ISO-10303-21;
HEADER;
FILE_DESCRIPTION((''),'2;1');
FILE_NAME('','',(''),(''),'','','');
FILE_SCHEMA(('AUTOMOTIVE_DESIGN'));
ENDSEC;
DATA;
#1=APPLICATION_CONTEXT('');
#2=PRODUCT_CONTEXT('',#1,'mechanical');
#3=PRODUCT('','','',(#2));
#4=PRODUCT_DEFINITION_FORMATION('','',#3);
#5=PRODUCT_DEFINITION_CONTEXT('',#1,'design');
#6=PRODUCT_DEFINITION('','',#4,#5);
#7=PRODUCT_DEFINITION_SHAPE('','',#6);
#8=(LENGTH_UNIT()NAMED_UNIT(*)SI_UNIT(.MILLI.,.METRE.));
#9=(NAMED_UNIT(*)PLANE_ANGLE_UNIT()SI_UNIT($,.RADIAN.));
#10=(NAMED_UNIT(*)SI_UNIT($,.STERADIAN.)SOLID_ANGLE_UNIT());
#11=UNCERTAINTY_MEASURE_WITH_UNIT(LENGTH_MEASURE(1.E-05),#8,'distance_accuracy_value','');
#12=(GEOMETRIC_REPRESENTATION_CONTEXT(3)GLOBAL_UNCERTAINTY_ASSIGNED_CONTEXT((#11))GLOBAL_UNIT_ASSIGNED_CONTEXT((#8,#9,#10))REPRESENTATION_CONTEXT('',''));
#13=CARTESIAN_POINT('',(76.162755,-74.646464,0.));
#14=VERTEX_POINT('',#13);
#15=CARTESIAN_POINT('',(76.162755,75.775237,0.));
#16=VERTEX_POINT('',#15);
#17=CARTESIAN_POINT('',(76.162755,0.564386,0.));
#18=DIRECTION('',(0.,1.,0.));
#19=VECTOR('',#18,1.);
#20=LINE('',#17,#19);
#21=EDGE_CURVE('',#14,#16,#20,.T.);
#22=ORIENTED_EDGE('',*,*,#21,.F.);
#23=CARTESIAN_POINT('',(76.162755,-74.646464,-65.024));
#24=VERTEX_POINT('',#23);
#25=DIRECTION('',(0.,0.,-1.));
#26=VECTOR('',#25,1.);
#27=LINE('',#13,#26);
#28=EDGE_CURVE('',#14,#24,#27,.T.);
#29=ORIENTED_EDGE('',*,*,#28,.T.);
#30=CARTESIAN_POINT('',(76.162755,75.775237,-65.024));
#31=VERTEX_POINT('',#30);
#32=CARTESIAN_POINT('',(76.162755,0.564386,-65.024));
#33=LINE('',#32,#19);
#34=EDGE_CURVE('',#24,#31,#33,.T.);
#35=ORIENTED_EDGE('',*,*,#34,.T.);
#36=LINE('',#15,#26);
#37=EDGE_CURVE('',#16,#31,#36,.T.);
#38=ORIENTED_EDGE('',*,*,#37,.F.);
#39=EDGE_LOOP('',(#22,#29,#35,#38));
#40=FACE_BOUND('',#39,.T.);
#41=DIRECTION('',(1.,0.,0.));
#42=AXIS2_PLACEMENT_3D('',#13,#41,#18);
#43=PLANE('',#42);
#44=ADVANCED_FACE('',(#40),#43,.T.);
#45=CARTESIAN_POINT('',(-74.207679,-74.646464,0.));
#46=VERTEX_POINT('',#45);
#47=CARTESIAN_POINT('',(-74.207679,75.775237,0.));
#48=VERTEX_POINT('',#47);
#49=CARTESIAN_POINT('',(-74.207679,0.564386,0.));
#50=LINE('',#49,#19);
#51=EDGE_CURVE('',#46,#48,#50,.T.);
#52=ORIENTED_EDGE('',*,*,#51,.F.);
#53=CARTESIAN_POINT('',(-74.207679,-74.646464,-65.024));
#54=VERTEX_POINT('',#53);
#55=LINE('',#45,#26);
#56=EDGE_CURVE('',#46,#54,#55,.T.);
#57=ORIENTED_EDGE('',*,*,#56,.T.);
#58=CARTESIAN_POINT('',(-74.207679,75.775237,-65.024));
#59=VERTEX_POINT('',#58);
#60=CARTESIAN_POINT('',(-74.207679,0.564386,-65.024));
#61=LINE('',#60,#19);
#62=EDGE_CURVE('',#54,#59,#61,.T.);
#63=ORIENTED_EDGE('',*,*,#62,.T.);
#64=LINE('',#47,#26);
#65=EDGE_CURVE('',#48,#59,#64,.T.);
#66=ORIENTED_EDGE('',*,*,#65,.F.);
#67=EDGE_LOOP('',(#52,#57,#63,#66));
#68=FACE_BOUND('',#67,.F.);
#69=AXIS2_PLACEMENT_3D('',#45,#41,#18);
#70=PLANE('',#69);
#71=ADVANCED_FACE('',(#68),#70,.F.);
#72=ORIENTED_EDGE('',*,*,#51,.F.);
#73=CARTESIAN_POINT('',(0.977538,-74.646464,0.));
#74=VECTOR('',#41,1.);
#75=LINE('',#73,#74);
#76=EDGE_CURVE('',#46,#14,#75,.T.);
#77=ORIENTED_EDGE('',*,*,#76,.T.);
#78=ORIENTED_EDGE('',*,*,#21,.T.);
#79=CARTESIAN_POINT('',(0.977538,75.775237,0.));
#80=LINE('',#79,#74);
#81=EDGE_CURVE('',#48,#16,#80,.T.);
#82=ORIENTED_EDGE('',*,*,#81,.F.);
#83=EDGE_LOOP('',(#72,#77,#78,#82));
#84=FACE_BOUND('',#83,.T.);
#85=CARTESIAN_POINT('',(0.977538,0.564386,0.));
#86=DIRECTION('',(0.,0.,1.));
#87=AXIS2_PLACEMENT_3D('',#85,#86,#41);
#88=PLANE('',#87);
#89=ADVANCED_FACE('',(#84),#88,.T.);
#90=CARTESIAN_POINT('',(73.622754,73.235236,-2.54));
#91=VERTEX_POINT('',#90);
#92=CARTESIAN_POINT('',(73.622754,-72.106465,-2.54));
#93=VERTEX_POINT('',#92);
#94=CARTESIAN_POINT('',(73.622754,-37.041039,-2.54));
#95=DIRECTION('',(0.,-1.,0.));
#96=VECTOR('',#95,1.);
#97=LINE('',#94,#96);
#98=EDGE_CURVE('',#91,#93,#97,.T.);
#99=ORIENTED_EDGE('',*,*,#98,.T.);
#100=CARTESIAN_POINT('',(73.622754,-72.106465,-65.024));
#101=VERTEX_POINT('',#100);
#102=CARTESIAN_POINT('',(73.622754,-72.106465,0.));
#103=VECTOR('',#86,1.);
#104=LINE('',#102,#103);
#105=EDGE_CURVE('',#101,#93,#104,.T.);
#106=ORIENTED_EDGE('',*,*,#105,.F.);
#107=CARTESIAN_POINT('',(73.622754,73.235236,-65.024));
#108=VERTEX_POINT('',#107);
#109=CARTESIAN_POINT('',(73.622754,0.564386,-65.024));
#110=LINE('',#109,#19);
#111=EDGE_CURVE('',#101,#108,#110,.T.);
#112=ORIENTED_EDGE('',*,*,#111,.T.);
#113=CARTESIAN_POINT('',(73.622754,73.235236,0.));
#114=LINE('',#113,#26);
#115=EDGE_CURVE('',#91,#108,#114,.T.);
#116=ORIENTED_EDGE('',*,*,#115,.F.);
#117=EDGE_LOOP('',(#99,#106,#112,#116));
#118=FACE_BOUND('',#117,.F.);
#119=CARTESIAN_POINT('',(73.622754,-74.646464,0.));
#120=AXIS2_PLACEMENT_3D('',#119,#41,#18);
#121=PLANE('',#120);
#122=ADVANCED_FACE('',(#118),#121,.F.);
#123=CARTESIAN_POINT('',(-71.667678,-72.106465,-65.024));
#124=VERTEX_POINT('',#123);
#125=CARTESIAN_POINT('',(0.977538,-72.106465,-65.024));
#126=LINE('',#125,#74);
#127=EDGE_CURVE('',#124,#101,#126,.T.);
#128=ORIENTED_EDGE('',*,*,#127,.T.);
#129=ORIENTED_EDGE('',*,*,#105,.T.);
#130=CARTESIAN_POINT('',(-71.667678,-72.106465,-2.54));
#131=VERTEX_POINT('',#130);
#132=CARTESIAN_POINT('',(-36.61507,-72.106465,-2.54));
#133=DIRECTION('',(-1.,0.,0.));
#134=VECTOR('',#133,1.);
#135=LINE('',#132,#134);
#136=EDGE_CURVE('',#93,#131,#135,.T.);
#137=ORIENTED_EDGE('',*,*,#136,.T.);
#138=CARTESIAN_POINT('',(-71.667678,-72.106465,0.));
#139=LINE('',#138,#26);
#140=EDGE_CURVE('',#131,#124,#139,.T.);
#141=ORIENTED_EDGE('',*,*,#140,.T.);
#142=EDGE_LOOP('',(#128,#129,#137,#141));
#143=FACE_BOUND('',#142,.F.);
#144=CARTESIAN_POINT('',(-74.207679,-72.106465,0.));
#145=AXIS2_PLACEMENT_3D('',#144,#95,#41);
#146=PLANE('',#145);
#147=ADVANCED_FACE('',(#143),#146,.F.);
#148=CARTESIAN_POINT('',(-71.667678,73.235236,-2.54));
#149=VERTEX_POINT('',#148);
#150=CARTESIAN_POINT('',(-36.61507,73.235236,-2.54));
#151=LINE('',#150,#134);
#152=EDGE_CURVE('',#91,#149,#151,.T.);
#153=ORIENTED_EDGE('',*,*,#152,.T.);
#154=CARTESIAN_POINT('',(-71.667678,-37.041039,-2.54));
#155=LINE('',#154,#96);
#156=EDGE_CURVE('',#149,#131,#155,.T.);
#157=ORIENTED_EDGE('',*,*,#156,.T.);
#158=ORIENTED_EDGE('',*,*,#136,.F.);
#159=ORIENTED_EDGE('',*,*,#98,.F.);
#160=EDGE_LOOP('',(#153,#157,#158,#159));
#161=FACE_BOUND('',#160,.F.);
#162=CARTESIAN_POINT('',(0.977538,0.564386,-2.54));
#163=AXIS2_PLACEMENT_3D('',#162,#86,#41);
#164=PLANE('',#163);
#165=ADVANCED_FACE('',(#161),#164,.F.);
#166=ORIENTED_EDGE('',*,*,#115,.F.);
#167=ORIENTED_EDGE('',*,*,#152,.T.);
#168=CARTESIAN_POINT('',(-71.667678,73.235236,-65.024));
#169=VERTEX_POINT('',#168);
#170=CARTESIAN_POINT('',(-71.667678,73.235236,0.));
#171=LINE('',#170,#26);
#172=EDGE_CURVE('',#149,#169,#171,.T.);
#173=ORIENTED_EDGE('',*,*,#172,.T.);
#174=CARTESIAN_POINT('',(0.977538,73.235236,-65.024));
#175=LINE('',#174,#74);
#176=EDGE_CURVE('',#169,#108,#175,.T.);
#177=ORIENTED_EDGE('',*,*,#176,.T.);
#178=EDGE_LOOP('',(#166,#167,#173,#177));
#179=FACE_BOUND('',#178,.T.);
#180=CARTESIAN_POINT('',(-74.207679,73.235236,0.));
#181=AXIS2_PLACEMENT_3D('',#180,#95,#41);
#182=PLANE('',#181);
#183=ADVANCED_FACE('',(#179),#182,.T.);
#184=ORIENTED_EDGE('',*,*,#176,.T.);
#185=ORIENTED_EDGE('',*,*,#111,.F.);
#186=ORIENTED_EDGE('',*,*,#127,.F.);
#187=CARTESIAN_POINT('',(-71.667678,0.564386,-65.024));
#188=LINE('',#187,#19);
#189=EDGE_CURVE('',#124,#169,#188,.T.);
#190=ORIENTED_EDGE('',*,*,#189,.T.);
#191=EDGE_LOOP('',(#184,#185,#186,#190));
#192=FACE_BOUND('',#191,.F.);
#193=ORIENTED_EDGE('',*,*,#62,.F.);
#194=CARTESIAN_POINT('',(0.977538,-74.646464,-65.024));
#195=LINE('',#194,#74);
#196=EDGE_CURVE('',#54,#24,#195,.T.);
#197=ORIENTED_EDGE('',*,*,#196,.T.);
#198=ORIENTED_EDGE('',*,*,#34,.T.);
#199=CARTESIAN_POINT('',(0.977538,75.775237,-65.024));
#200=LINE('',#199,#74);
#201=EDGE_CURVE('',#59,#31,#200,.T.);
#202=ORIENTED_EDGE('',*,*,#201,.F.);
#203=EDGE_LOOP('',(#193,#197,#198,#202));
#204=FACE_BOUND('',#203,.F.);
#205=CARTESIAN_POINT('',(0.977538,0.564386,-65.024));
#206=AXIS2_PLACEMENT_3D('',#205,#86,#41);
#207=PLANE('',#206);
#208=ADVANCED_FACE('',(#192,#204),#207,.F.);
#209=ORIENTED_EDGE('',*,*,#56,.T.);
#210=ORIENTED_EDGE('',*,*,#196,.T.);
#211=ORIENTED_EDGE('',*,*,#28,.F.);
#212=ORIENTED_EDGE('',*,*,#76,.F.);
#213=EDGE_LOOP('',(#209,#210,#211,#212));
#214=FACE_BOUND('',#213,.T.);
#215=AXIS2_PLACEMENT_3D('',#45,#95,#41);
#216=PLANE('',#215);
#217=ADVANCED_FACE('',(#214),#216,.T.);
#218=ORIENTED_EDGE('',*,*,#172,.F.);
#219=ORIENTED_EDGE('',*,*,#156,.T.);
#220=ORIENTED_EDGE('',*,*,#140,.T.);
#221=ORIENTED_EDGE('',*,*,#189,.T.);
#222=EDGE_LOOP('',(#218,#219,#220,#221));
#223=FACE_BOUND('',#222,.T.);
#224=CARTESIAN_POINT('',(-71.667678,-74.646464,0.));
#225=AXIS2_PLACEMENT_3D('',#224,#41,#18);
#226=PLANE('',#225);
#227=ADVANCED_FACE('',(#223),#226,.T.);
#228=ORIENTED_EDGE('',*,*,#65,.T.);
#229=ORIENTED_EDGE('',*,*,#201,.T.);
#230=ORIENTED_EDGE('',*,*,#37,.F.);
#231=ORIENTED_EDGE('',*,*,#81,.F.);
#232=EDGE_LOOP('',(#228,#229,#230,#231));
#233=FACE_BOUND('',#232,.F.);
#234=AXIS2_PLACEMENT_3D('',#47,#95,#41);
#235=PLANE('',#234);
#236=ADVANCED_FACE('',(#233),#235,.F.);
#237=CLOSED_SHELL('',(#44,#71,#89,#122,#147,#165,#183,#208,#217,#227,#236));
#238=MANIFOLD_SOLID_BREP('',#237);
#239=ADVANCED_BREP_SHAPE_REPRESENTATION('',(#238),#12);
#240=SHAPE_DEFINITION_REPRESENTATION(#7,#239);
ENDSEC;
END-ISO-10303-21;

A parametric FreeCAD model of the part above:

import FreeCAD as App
import Part
import Sketcher
from FreeCAD import Vector
Q = App.Units.Quantity


def faces_at(feature, points):
    """Names of the faces that lie closest to the given points."""
    faces = feature.Shape.Faces
    near = lambda p: min(range(len(faces)), key=lambda i: faces[i].distToShape(Part.Vertex(*p))[0])
    return sorted({f"Face{near(p) + 1}" for p in points})


def add_polygon(sketch, points):
    """Adds a closed chain of lines whose ends are joined by coincident constraints."""
    first, n = sketch.GeometryCount, len(points)
    for a, b in zip(points, points[1:] + points[:1]):
        sketch.addGeometry(Part.LineSegment(App.Vector(*a, 0), App.Vector(*b, 0)), False)
    for i in range(n):
        sketch.addConstraint(Sketcher.Constraint("Coincident", first + i, 2, first + (i + 1) % n, 1))

doc = App.newDocument("Part")
body = doc.addObject("PartDesign::Body", "Body")

# Sketch on XY plane
sketch1 = body.newObject("Sketcher::SketchObject", "Sketch")
sketch1.AttachmentSupport = (doc.getObject("XY_Plane"), [""])
sketch1.MapMode = "FlatFace"
add_polygon(sketch1, [(-74, 76), (-74, -75), (76, -75), (76, 76)])  # lines 0-3
sketch1.addConstraint(Sketcher.Constraint("Vertical", 0))
sketch1.addConstraint(Sketcher.Constraint("Horizontal", 1))
sketch1.addConstraint(Sketcher.Constraint("Vertical", 2))
sketch1.addConstraint(Sketcher.Constraint("Horizontal", 3))
sketch1.addConstraint(Sketcher.Constraint("DistanceY", 0, 2, 0, 1, 150.421701))
sketch1.addConstraint(Sketcher.Constraint("DistanceX", 1, 1, 1, 2, 150.370433))
sketch1.addConstraint(Sketcher.Constraint("DistanceX", 0, 2, -1, 1, 74.207679))
sketch1.addConstraint(Sketcher.Constraint("DistanceY", 0, 2, -1, 1, 74.646464))
pad1 = body.newObject("PartDesign::Pad", "Pad")
pad1.Profile = sketch1
pad1.Length = Q("2.56 in")
pad1.Reversed = True
doc.recompute()

thickness = body.newObject("PartDesign::Thickness", "Thickness")
thickness.Base = (pad1, faces_at(pad1, [(0.978, 0.564, -65.024)]))
thickness.Value = Q("0.1 in")
thickness.Reversed = True
thickness.Join = "Arc"

doc.recompute()
